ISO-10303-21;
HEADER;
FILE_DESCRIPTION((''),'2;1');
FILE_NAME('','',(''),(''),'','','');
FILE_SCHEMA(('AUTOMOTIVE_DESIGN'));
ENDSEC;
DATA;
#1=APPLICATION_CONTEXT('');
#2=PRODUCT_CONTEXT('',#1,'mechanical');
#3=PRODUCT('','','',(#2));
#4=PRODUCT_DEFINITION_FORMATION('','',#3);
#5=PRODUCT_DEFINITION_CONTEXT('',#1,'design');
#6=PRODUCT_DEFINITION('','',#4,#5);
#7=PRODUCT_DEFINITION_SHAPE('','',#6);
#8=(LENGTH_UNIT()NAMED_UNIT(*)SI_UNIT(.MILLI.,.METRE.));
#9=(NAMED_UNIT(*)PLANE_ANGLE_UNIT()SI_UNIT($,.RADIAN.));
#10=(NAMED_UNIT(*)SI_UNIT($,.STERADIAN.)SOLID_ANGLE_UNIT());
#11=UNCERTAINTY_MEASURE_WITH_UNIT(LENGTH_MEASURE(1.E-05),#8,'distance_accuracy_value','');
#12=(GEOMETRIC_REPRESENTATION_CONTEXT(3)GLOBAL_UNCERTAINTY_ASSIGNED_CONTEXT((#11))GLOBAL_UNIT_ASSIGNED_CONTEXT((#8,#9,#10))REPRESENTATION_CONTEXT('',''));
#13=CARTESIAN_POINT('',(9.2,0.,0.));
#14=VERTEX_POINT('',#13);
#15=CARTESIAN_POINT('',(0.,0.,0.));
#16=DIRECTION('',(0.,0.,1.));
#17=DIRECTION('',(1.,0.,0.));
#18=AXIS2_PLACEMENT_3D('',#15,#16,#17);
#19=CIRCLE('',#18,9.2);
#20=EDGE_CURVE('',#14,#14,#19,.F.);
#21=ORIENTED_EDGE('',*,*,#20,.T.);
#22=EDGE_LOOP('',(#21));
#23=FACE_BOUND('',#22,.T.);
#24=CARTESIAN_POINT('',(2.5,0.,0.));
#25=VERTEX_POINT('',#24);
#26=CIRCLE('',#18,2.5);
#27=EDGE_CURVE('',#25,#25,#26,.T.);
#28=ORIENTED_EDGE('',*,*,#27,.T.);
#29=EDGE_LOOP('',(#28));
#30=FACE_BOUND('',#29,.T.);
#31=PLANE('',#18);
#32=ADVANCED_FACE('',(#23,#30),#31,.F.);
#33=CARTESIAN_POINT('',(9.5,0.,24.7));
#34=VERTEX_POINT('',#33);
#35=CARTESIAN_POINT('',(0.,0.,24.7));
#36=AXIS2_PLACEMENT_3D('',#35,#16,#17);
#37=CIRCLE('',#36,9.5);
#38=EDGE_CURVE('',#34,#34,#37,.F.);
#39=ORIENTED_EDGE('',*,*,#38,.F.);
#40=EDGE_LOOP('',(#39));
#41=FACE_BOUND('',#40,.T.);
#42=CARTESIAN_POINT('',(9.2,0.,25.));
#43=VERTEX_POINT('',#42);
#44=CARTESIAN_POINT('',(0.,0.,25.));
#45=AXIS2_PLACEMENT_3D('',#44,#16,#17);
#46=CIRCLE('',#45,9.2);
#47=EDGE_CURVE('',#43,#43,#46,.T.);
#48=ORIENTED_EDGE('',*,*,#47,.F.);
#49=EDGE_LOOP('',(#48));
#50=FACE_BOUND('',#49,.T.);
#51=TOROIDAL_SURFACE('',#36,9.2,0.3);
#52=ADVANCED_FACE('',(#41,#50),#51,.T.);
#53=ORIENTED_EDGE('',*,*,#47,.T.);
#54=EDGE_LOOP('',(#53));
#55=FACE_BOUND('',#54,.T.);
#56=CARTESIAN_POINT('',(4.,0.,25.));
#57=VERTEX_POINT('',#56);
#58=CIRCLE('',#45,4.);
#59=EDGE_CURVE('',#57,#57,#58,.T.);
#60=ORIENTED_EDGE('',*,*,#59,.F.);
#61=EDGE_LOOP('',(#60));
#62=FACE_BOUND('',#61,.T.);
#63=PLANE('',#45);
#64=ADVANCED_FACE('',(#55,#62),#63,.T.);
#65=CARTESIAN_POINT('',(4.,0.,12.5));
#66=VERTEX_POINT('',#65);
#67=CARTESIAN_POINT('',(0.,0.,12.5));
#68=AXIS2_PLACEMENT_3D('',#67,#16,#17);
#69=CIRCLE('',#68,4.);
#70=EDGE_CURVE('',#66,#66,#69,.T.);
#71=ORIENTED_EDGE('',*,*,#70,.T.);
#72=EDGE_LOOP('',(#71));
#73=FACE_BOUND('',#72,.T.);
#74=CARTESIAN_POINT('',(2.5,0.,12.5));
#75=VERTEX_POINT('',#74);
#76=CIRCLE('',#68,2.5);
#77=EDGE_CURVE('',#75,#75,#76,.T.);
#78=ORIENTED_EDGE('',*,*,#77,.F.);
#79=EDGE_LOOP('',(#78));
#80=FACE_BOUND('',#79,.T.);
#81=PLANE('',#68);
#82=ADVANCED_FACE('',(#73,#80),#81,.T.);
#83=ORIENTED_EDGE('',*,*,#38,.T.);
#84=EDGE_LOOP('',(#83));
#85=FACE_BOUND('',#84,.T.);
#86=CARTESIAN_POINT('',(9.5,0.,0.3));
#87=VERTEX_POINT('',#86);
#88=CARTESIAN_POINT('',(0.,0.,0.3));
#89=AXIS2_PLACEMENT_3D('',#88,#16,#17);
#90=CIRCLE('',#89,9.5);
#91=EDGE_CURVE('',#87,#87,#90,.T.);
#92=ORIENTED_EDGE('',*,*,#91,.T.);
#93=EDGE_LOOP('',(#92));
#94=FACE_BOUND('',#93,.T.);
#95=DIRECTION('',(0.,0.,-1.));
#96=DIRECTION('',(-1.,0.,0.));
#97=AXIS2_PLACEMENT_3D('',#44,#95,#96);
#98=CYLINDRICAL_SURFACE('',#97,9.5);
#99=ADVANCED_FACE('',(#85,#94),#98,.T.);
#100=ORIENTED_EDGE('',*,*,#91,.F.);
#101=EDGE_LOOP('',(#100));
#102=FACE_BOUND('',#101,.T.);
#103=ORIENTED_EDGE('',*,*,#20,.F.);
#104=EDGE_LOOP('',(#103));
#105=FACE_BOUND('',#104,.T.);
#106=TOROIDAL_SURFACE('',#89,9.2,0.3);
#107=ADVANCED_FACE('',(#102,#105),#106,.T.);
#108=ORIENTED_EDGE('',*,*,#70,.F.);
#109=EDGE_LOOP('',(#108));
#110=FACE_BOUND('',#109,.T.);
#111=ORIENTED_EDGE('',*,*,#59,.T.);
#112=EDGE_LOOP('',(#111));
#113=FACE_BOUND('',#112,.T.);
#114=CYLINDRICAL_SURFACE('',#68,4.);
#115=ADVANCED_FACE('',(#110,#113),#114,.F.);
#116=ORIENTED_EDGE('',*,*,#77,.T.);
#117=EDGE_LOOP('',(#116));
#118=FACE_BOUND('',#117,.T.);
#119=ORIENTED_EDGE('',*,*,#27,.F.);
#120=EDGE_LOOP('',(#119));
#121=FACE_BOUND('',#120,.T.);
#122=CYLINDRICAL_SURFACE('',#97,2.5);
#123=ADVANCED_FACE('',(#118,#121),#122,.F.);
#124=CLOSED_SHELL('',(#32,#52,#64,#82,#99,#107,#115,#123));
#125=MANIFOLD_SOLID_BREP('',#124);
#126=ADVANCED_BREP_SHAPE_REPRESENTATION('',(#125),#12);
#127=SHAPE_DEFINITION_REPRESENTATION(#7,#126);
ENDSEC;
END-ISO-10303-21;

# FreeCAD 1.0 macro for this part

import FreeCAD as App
import Part
import Sketcher
from FreeCAD import Vector
Q = App.Units.Quantity


def edges_at(feature, points):
    """Names of the edges that pass closest to the given points."""
    edges = feature.Shape.Edges
    near = lambda p: min(range(len(edges)), key=lambda i: edges[i].distToShape(Part.Vertex(*p))[0])
    return sorted({f"Edge{near(p) + 1}" for p in points})

doc = App.newDocument("Part")
body = doc.addObject("PartDesign::Body", "Body")

sketch1 = doc.addObject("Sketcher::SketchObject", "Sketch")
body.addObject(sketch1)
sketch1.AttachmentSupport = (doc.XY_Plane, [""])
sketch1.MapMode = "FlatFace"
sketch1.addGeometry(Part.Circle(Vector(0, 0, 0), Vector(0, 0, 1), 9.5), False)
sketch1.addGeometry(Part.Circle(Vector(0, 0, 0), Vector(0, 0, 1), 2.5), False)
sketch1.addConstraint(Sketcher.Constraint("Coincident", 0, 3, -1, 1))
sketch1.addConstraint(Sketcher.Constraint("Coincident", 1, 3, -1, 1))
sketch1.addConstraint(Sketcher.Constraint("Diameter", 0, Q("19 mm")))
sketch1.addConstraint(Sketcher.Constraint("Diameter", 1, Q("5 mm")))
pad1 = doc.addObject("PartDesign::Pad", "Pad")
body.addObject(pad1)
pad1.Profile = sketch1
pad1.Length = 25

sketch2 = doc.addObject("Sketcher::SketchObject", "Sketch001")
body.addObject(sketch2)
sketch2.AttachmentSupport = (doc.XY_Plane, [""])
sketch2.MapMode = "FlatFace"
sketch2.AttachmentOffset = App.Placement(Vector(0, 0, 25), App.Rotation())
sketch2.addGeometry(Part.Circle(Vector(0, 0, 0), Vector(0, 0, 1), 4), False)
sketch2.addConstraint(Sketcher.Constraint("Coincident", 0, 3, -1, 1))
sketch2.addConstraint(Sketcher.Constraint("Diameter", 0, Q("8 mm")))
pocket1 = doc.addObject("PartDesign::Pocket", "Pocket")
body.addObject(pocket1)
pocket1.Profile = sketch2
pocket1.Length = 12.5
doc.recompute()

fillet = doc.addObject("PartDesign::Fillet", "Fillet")
body.addObject(fillet)
fillet.Base = (pocket1, edges_at(pocket1, [(-9.5, 0, 0), (-9.5, 0, 25)]))
fillet.Radius = 0.3

doc.recompute()
